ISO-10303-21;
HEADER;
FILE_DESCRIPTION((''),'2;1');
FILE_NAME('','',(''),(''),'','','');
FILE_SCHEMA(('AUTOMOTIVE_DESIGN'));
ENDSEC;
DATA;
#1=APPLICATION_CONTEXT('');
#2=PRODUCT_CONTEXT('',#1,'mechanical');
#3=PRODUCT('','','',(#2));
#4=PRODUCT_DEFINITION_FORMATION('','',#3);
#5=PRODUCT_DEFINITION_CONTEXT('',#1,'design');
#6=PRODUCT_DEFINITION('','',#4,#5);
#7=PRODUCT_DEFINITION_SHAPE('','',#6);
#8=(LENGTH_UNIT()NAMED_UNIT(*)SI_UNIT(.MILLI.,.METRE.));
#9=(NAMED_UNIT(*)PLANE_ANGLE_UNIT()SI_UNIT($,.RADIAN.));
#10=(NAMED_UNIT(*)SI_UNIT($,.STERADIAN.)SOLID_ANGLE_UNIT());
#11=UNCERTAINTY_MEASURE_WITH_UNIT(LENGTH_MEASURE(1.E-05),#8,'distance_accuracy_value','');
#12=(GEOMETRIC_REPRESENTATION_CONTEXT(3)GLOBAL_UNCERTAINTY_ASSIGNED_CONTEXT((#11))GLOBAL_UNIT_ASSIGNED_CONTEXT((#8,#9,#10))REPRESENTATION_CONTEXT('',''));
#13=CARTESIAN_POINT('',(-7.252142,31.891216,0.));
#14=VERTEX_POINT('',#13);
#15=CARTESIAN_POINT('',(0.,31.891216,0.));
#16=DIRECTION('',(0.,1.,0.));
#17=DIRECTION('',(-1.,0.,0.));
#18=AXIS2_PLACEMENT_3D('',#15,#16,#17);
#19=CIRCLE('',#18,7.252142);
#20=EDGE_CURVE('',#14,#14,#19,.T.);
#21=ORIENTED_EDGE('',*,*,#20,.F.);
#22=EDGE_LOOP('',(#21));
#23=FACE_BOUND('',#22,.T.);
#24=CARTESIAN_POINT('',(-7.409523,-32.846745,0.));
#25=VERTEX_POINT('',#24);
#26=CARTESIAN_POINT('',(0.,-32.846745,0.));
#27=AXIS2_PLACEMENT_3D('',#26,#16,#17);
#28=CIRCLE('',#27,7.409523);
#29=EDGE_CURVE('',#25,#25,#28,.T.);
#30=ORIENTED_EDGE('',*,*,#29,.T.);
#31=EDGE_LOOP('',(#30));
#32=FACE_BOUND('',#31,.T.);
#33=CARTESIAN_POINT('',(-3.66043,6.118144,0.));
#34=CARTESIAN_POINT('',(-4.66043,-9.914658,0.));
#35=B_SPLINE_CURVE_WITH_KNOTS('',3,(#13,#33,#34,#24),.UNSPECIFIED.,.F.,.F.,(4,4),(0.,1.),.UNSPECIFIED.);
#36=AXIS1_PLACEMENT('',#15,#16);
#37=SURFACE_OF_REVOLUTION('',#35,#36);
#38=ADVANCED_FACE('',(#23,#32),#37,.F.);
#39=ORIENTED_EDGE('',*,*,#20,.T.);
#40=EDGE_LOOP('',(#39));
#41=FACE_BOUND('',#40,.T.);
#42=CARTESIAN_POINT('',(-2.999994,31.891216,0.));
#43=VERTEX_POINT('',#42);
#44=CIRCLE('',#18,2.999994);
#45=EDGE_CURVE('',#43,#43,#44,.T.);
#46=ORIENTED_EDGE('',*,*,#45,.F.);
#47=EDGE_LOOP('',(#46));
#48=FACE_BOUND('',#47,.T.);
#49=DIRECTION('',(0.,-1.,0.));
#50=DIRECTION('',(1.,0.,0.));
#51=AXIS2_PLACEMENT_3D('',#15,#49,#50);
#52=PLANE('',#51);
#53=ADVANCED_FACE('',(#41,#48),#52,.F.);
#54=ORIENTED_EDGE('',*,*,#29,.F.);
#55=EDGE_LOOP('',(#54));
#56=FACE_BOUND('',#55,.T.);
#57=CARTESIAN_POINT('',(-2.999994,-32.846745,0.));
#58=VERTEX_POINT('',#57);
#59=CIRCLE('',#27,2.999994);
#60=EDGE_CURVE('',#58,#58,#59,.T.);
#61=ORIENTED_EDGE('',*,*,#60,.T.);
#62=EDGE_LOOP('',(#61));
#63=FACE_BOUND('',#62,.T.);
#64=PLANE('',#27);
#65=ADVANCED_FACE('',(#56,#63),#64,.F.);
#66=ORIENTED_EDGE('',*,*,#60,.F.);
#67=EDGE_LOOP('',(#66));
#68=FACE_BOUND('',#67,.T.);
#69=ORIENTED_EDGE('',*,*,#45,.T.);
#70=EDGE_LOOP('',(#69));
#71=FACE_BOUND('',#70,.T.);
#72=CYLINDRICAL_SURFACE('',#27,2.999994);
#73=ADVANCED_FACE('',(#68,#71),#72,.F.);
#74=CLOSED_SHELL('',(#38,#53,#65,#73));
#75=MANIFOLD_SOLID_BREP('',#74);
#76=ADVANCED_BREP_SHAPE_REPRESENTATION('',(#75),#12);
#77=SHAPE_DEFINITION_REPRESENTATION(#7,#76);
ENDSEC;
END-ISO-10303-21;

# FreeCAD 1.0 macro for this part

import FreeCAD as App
import Part
import Sketcher

doc = App.newDocument("Part")
params = doc.addObject("Spreadsheet::Sheet", "Params")
for row, (alias, value) in enumerate([
    ("revolution_angle", "360 deg"),
], start=1):
    params.set(f"A{row}", alias)
    params.set(f"B{row}", "=" + value)
    params.setAlias(f"B{row}", alias)

body = doc.addObject("PartDesign::Body", "Body")

# Sketch on XY plane
sketch1 = body.newObject("Sketcher::SketchObject", "Sketch")
sketch1.AttachmentSupport = (doc.getObject("XY_Plane"), [""])
sketch1.MapMode = "FlatFace"
sketch1.addGeometry([
    Part.LineSegment(App.Vector(0, 31.891216, 0), App.Vector(-7.252142, 31.891216, 0)),
    Part.BSplineCurve([App.Vector(-7.252142, 31.891216, 0), App.Vector(-3.66043, 6.118144, 0), App.Vector(-4.66043, -9.914658, 0), App.Vector(-7.409523, -32.846745, 0)], [4, 4], [0, 1], False, 3, [1, 1, 1, 1], False),
    Part.LineSegment(App.Vector(-7.409523, -32.846745, 0), App.Vector(0, -32.846745, 0)),
    Part.LineSegment(App.Vector(0, -32.846745, 0), App.Vector(0, 31.891216, 0)),
], False)
sketch1.addConstraint([
    Sketcher.Constraint("Block", 1),
    Sketcher.Constraint("Coincident", 0, 2, 1, 1),
    Sketcher.Constraint("Coincident", 1, 2, 2, 1),
    Sketcher.Constraint("Coincident", 2, 2, 3, 1),
    Sketcher.Constraint("Coincident", 3, 2, 0, 1),
    Sketcher.Constraint("Horizontal", 0),
    Sketcher.Constraint("Horizontal", 2),
    Sketcher.Constraint("Vertical", 3),
    Sketcher.Constraint("PointOnObject", 2, 2, -2),
])
revolution = body.newObject("PartDesign::Revolution", "Revolution")
revolution.Profile = sketch1
revolution.ReferenceAxis = (sketch1, ["V_Axis"])
revolution.setExpression("Angle", "Params.revolution_angle")

# Sketch on XZ plane
sketch2 = body.newObject("Sketcher::SketchObject", "Sketch001")
sketch2.AttachmentSupport = (doc.getObject("XZ_Plane"), [""])
sketch2.MapMode = "FlatFace"
sketch2.AttachmentOffset = App.Placement(App.Vector(0, 0, -31.891216), App.Rotation())
sketch2.addGeometry(Part.Circle(App.Vector(0, 0, 0), App.Vector(0, 0, 1), 2.999994), False)
sketch2.addConstraint([
    Sketcher.Constraint("Coincident", 0, 3, -1, 1),
    Sketcher.Constraint("Diameter", 0, 5.999988),
])
pocket1 = body.newObject("PartDesign::Pocket", "Pocket")
pocket1.Profile = sketch2
pocket1.Type = "ThroughAll"
pocket1.Reversed = True

doc.recompute()
